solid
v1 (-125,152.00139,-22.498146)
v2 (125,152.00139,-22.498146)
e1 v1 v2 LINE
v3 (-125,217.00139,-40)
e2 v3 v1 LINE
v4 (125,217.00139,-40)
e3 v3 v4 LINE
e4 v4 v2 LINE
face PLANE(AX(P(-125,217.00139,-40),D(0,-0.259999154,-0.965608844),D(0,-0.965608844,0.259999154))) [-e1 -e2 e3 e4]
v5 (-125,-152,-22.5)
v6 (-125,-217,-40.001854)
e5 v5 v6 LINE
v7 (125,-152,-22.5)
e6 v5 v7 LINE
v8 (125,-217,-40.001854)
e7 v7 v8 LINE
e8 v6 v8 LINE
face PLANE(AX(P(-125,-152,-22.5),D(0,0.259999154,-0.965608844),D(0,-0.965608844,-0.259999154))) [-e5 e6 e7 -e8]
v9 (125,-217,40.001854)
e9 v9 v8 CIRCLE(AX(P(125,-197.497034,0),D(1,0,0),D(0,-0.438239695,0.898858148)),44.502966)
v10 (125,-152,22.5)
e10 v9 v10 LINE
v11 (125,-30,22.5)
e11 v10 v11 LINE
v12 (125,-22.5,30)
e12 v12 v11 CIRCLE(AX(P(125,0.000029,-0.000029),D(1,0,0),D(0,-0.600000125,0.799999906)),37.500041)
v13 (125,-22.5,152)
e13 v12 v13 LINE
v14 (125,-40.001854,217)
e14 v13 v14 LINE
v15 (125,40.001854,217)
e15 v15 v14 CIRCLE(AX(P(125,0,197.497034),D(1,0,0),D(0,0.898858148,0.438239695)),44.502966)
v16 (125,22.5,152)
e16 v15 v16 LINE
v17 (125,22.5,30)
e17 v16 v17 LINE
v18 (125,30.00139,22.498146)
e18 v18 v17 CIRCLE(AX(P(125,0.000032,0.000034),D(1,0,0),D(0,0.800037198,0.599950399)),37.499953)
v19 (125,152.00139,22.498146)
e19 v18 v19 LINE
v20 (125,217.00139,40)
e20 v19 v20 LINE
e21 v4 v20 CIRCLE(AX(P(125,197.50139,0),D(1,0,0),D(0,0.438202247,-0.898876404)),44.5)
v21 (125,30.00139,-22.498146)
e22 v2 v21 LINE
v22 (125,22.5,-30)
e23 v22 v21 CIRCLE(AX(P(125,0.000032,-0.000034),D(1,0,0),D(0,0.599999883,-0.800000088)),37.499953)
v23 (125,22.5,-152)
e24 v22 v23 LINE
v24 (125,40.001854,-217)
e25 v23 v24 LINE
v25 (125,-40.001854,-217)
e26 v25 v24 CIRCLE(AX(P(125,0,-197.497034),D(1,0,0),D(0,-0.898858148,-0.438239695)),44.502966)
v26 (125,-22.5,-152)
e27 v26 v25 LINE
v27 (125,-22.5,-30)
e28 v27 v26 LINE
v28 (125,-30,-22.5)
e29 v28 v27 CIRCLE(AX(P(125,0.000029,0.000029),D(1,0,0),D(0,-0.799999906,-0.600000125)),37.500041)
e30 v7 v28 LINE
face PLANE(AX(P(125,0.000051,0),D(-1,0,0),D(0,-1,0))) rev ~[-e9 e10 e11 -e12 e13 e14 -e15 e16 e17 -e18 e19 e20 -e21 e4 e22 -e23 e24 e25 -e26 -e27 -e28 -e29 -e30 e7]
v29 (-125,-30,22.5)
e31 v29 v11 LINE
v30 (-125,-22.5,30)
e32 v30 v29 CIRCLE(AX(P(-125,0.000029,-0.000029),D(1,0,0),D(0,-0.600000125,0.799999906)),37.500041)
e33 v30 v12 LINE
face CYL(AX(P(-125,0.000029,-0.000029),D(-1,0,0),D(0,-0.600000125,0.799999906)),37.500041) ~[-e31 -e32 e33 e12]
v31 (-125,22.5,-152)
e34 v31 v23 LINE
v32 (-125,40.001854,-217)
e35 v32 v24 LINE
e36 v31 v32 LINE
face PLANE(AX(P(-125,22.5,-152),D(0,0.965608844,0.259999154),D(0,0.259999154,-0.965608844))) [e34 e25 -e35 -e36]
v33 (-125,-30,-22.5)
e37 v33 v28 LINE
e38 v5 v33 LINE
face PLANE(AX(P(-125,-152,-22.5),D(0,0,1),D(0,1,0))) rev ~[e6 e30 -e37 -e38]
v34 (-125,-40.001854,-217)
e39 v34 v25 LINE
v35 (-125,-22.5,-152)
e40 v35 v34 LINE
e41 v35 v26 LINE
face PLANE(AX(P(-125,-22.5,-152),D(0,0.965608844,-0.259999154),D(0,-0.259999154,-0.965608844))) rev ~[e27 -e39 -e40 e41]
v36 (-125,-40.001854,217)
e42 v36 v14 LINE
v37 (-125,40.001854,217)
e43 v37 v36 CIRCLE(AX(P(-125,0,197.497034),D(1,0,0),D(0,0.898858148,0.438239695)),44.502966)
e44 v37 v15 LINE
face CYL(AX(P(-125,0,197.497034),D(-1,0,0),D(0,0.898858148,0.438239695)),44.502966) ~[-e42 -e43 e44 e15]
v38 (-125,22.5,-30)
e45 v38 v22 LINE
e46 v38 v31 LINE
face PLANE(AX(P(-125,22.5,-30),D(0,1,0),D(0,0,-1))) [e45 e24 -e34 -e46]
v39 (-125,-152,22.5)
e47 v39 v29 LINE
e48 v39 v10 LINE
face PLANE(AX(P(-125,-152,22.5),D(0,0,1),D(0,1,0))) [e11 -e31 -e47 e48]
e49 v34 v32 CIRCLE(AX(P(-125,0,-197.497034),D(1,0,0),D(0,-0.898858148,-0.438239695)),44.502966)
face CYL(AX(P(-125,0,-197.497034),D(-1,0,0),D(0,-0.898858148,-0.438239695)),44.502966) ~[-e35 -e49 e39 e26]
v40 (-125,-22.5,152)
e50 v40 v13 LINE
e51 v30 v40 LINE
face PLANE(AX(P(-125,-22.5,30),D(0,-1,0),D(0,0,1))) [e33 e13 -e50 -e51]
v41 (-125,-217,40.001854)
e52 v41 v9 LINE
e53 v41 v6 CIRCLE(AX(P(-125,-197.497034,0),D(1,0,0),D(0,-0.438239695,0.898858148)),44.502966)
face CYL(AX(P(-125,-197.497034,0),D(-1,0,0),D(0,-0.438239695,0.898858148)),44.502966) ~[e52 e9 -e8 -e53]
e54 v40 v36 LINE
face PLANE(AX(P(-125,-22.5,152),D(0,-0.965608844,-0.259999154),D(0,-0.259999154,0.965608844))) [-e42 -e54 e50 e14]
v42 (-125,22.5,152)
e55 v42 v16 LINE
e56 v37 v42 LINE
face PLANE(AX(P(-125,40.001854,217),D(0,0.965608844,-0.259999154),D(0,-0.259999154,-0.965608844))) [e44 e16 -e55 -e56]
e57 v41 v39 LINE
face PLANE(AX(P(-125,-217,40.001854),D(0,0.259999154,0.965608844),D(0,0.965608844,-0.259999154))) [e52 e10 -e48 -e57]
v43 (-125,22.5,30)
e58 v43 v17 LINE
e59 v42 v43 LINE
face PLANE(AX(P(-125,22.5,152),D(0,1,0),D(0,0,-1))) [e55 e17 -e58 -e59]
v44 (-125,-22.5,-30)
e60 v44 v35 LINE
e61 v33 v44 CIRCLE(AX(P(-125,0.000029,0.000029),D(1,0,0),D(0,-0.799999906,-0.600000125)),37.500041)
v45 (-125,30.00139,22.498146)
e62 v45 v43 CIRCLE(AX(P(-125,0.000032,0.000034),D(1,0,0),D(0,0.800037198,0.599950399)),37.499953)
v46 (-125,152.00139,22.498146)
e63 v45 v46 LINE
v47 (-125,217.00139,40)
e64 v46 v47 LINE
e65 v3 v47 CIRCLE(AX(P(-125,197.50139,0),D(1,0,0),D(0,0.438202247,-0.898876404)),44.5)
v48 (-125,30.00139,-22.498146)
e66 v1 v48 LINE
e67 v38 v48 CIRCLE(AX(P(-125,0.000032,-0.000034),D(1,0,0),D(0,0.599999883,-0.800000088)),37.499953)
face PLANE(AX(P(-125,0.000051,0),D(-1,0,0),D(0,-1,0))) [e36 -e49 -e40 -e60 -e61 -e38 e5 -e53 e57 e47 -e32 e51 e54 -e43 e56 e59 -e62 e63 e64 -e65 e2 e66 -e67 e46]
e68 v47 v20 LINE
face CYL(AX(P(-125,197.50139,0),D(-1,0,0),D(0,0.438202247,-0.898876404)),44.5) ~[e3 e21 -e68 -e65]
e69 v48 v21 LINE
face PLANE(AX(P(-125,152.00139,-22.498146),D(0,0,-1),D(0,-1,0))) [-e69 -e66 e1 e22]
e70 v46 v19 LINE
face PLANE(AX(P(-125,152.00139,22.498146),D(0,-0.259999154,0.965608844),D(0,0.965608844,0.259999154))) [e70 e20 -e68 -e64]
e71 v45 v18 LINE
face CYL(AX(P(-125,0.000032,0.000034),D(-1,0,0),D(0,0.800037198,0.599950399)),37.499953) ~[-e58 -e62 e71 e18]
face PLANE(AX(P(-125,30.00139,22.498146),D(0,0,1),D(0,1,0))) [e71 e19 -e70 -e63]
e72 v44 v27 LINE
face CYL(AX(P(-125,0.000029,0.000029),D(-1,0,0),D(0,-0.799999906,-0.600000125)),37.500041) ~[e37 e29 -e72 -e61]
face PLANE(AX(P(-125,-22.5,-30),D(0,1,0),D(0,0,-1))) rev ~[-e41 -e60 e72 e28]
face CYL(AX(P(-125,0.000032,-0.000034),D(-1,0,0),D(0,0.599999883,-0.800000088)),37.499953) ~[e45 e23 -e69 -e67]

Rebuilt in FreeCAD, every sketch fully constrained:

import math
import FreeCAD as App
import Part
import Sketcher

V = App.Vector
Q = App.Units.Quantity

doc = App.newDocument("Part")
body = doc.addObject("PartDesign::Body", "Body")

sketch1 = body.newObject("Sketcher::SketchObject", "Sketch")
sketch1.AttachmentSupport = (doc.getObject("YZ_Plane"), [""])
sketch1.MapMode = "FlatFace"
sketch1.AttachmentOffset = App.Placement(V(0, 0, -125), App.Rotation())
sketch1.addGeometry([
    Part.LineSegment(V(-217, -40.001854, 0), V(-152, -22.5, 0)),
    Part.LineSegment(V(-152, -22.5, 0), V(-30, -22.5, 0)),
    Part.ArcOfCircle(Part.Circle(V(0.000029, 0.000029, 0), V(0, 0, 1), 37.500041), math.radians(-143.130093), math.radians(-126.869907)),
    Part.LineSegment(V(-22.5, -30, 0), V(-22.5, -152, 0)),
    Part.LineSegment(V(-22.5, -152, 0), V(-40.001854, -217, 0)),
    Part.ArcOfCircle(Part.Circle(V(0, -197.497034, 0), V(0, 0, 1), 44.502966), math.radians(-154.008379), math.radians(-25.991621)),
    Part.LineSegment(V(40.001854, -217, 0), V(22.5, -152, 0)),
    Part.LineSegment(V(22.5, -152, 0), V(22.5, -30, 0)),
    Part.ArcOfCircle(Part.Circle(V(0.000032, -0.000034, 0), V(0, 0, 1), 37.499953), math.radians(-53.130111), math.radians(-36.866345)),
    Part.LineSegment(V(30.00139, -22.498146, 0), V(152.00139, -22.498146, 0)),
    Part.LineSegment(V(152.00139, -22.498146, 0), V(217.00139, -40, 0)),
    Part.ArcOfCircle(Part.Circle(V(197.50139, 0, 0), V(0, 0, 1), 44.5), math.radians(-64.010766), math.radians(64.010766)),
    Part.LineSegment(V(217.00139, 40, 0), V(152.00139, 22.498146, 0)),
    Part.LineSegment(V(152.00139, 22.498146, 0), V(30.00139, 22.498146, 0)),
    Part.ArcOfCircle(Part.Circle(V(0.000032, 0.000034, 0), V(0, 0, 1), 37.499953), math.radians(36.866345), math.radians(53.130111)),
    Part.LineSegment(V(22.5, 30, 0), V(22.5, 152, 0)),
    Part.LineSegment(V(22.5, 152, 0), V(40.001854, 217, 0)),
    Part.ArcOfCircle(Part.Circle(V(0, 197.497034, 0), V(0, 0, 1), 44.502966), math.radians(25.991621), math.radians(154.008379)),
    Part.LineSegment(V(-40.001854, 217, 0), V(-22.5, 152, 0)),
    Part.LineSegment(V(-22.5, 152, 0), V(-22.5, 30, 0)),
    Part.ArcOfCircle(Part.Circle(V(0.000029, -0.000029, 0), V(0, 0, 1), 37.500041), math.radians(126.869907), math.radians(143.130093)),
    Part.LineSegment(V(-30, 22.5, 0), V(-152, 22.5, 0)),
    Part.LineSegment(V(-152, 22.5, 0), V(-217, 40.001854, 0)),
    Part.ArcOfCircle(Part.Circle(V(-197.497034, 0, 0), V(0, 0, 1), 44.502966), math.radians(115.991621), math.radians(244.008379)),
], False)
sketch1.addConstraint([
    Sketcher.Constraint("Coincident", 0, 2, 1, 1),
    Sketcher.Constraint("Coincident", 1, 2, 2, 1),
    Sketcher.Constraint("Coincident", 2, 2, 3, 1),
    Sketcher.Constraint("Coincident", 3, 2, 4, 1),
    Sketcher.Constraint("Coincident", 4, 2, 5, 1),
    Sketcher.Constraint("Coincident", 5, 2, 6, 1),
    Sketcher.Constraint("Coincident", 6, 2, 7, 1),
    Sketcher.Constraint("Coincident", 7, 2, 8, 1),
    Sketcher.Constraint("Coincident", 8, 2, 9, 1),
    Sketcher.Constraint("Coincident", 9, 2, 10, 1),
    Sketcher.Constraint("Coincident", 10, 2, 11, 1),
    Sketcher.Constraint("Coincident", 11, 2, 12, 1),
    Sketcher.Constraint("Coincident", 12, 2, 13, 1),
    Sketcher.Constraint("Coincident", 13, 2, 14, 1),
    Sketcher.Constraint("Coincident", 14, 2, 15, 1),
    Sketcher.Constraint("Coincident", 15, 2, 16, 1),
    Sketcher.Constraint("Coincident", 16, 2, 17, 1),
    Sketcher.Constraint("Coincident", 17, 2, 18, 1),
    Sketcher.Constraint("Coincident", 18, 2, 19, 1),
    Sketcher.Constraint("Coincident", 19, 2, 20, 1),
    Sketcher.Constraint("Coincident", 20, 2, 21, 1),
    Sketcher.Constraint("Coincident", 21, 2, 22, 1),
    Sketcher.Constraint("Coincident", 22, 2, 23, 1),
    Sketcher.Constraint("Coincident", 23, 2, 0, 1),
    Sketcher.Constraint("Horizontal", 1),
    Sketcher.Constraint("Vertical", 3),
    Sketcher.Constraint("Vertical", 7),
    Sketcher.Constraint("Horizontal", 9),
    Sketcher.Constraint("Horizontal", 13),
    Sketcher.Constraint("Vertical", 15),
    Sketcher.Constraint("Vertical", 19),
    Sketcher.Constraint("Horizontal", 21),
    Sketcher.Constraint("Coincident", 14, 3, 2, 3),
    Sketcher.Constraint("Coincident", 20, 3, 8, 3),
    Sketcher.Constraint("Equal", 8, 14),
    Sketcher.Constraint("Equal", 5, 17),
    Sketcher.Constraint("Equal", 2, 20),
    Sketcher.Constraint("Equal", 17, 23),
    Sketcher.Constraint("Symmetric", 5, 3, 17, 3, -1, 1),
    Sketcher.Constraint("Symmetric", 2, 2, 14, 2, -1, 1),
    Sketcher.Constraint("Symmetric", 6, 2, 18, 2, -1, 1),
    Sketcher.Constraint("Symmetric", 4, 2, 5, 2, -2),
    Sketcher.Constraint("Symmetric", 3, 2, 6, 2, -2),
    Sketcher.Constraint("Symmetric", 2, 3, 8, 3, -1),
    Sketcher.Constraint("Symmetric", 10, 2, 11, 2, -1),
    Sketcher.Constraint("Symmetric", 9, 2, 12, 2, -1),
    Sketcher.Constraint("Symmetric", 0, 2, 21, 2, -1),
    Sketcher.Constraint("Symmetric", 22, 2, 23, 2, -1),
    Sketcher.Constraint("Perpendicular", 0, 6),
    Sketcher.Constraint("Perpendicular", 4, 10),
    Sketcher.Constraint("Perpendicular", 10, 16),
    Sketcher.Constraint("Perpendicular", 12, 18),
    Sketcher.Constraint("Horizontal", 16, 2, 17, 2),
    Sketcher.Constraint("Equal", 1, 9),
    Sketcher.Constraint("Equal", 21, 3),
    Sketcher.Constraint("Equal", 0, 4),
    Sketcher.Constraint("Equal", 6, 10),
    Sketcher.Constraint("Radius", 11, 44.5),
    Sketcher.Constraint("DistanceX", 1, 1, 1, 2, 122.0),
    Sketcher.Constraint("DistanceX", 0, 2, -1, 1, 152.0),
    Sketcher.Constraint("DistanceY", 2, 2, -1, 1, 30.0),
    Sketcher.Constraint("DistanceY", 4, 2, -1, 1, 217.0),
    Sketcher.Constraint("DistanceY", 10, 2, -1, 1, 40.0),
    Sketcher.Constraint("DistanceX", 3, 2, 6, 2, 45.0),
    Sketcher.Constraint("DistanceY", 0, 2, 21, 2, 45.0),
    Sketcher.Constraint("Angle", 0, Q("15.070012 deg")),
    Sketcher.Constraint("Radius", 2, 37.500041),
    Sketcher.Constraint("Radius", 5, 44.502966),
])
pad1 = body.newObject("PartDesign::Pad", "Pad")
pad1.Profile = sketch1
pad1.Length = 250

doc.recompute()
